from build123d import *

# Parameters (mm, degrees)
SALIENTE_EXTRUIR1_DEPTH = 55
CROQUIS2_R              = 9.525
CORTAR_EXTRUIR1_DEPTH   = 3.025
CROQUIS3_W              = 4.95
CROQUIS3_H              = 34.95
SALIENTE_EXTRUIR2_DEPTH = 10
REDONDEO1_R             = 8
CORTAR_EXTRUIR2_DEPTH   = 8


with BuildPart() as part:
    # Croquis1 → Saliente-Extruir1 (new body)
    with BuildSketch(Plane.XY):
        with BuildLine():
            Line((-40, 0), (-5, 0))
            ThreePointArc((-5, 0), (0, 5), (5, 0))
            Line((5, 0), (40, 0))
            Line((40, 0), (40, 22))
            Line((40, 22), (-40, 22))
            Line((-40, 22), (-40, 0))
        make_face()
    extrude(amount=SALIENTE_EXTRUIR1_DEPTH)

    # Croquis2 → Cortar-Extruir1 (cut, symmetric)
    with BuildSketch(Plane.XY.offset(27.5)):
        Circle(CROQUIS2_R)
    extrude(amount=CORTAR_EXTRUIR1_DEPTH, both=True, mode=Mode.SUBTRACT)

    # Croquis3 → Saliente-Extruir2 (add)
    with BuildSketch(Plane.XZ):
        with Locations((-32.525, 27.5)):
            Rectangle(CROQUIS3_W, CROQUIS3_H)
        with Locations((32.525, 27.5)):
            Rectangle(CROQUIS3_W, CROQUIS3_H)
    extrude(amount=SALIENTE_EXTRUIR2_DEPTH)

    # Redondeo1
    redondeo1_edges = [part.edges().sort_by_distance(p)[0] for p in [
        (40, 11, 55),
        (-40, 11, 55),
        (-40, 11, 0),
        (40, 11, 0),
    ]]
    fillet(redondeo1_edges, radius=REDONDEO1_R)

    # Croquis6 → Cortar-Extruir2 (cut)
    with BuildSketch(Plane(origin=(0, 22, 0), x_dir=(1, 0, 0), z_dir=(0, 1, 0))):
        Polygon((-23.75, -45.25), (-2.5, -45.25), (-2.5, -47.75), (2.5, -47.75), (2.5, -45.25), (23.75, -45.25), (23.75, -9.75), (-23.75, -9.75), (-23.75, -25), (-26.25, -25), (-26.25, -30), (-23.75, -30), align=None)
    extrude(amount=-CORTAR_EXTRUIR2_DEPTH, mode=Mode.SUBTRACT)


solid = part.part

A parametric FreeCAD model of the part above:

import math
import FreeCAD as App
import Part
import Sketcher

V = App.Vector


def edges_at(feature, points):
    """Names of the edges that pass closest to the given points."""
    edges = feature.Shape.Edges
    near = lambda p: min(range(len(edges)), key=lambda i: edges[i].distToShape(Part.Vertex(*p))[0])
    return sorted({f"Edge{near(p) + 1}" for p in points})

doc = App.newDocument("Part")
body = doc.addObject("PartDesign::Body", "Body")

# Sketch on XY plane
sketch1 = body.newObject("Sketcher::SketchObject", "Sketch")
sketch1.AttachmentSupport = (doc.getObject("XY_Plane"), [""])
sketch1.MapMode = "FlatFace"
sketch1.addGeometry([
    Part.LineSegment(V(-40, 0, 0), V(-5, 0, 0)),  # 0
    Part.ArcOfCircle(Part.Circle(V(0, 0, 0), V(0, 0, 1), 5), math.radians(0), math.radians(180)),  # 1
    Part.LineSegment(V(5, 0, 0), V(40, 0, 0)),  # 2
    Part.LineSegment(V(40, 0, 0), V(40, 22, 0)),  # 3
    Part.LineSegment(V(40, 22, 0), V(-40, 22, 0)),  # 4
    Part.LineSegment(V(-40, 22, 0), V(-40, 0, 0)),  # 5
], False)
sketch1.addConstraint([
    Sketcher.Constraint("Coincident", 0, 2, 1, 2),
    Sketcher.Constraint("Coincident", 1, 1, 2, 1),
    Sketcher.Constraint("Coincident", 2, 2, 3, 1),
    Sketcher.Constraint("Coincident", 3, 2, 4, 1),
    Sketcher.Constraint("Coincident", 4, 2, 5, 1),
    Sketcher.Constraint("Coincident", 5, 2, 0, 1),
    Sketcher.Constraint("Horizontal", 0),
    Sketcher.Constraint("Horizontal", 2),
    Sketcher.Constraint("Vertical", 3),
    Sketcher.Constraint("Horizontal", 4),
    Sketcher.Constraint("Vertical", 5),
    Sketcher.Constraint("Coincident", 1, 3, -1, 1),
    Sketcher.Constraint("Symmetric", 2, 2, 5, 2, -1, 1),
    Sketcher.Constraint("PointOnObject", 0, 2, -1),
    Sketcher.Constraint("Radius", 1, 5.0),
    Sketcher.Constraint("DistanceX", 0, 1, 0, 2, 35.0),
    Sketcher.Constraint("DistanceY", 3, 1, 3, 2, 22.0),
])
pad1 = body.newObject("PartDesign::Pad", "Pad")
pad1.Profile = sketch1
pad1.Length = 55

# Sketch on XY plane
sketch2 = body.newObject("Sketcher::SketchObject", "Sketch001")
sketch2.AttachmentSupport = (doc.getObject("XY_Plane"), [""])
sketch2.MapMode = "FlatFace"
sketch2.AttachmentOffset = App.Placement(V(0, 0, 27.5), App.Rotation())
sketch2.addGeometry(Part.Circle(V(0, 0, 0), V(0, 0, 1), 10), False)
sketch2.addConstraint([
    Sketcher.Constraint("Coincident", 0, 3, -1, 1),
    Sketcher.Constraint("Diameter", 0, 19.05),
])
pocket1 = body.newObject("PartDesign::Pocket", "Pocket")
pocket1.Profile = sketch2
pocket1.Length = 6.05
pocket1.Midplane = True

# Sketch on XZ plane
sketch3 = body.newObject("Sketcher::SketchObject", "Sketch002")
sketch3.AttachmentSupport = (doc.getObject("XZ_Plane"), [""])
sketch3.MapMode = "FlatFace"
sketch3.addGeometry([
    Part.LineSegment(V(-35, 45, 0), V(-35, 10, 0)),  # 0
    Part.LineSegment(V(-35, 10, 0), V(-30.1, 10, 0)),  # 1
    Part.LineSegment(V(-30.1, 10, 0), V(-30.1, 45, 0)),  # 2
    Part.LineSegment(V(-30.1, 45, 0), V(-35, 45, 0)),  # 3
    Part.LineSegment(V(30.1, 45, 0), V(30.1, 10, 0)),  # 4
    Part.LineSegment(V(30.1, 10, 0), V(35, 10, 0)),  # 5
    Part.LineSegment(V(35, 10, 0), V(35, 45, 0)),  # 6
    Part.LineSegment(V(35, 45, 0), V(30.1, 45, 0)),  # 7
], False)
sketch3.addConstraint([
    Sketcher.Constraint("Coincident", 0, 2, 1, 1),
    Sketcher.Constraint("Coincident", 1, 2, 2, 1),
    Sketcher.Constraint("Coincident", 2, 2, 3, 1),
    Sketcher.Constraint("Coincident", 3, 2, 0, 1),
    Sketcher.Constraint("Coincident", 4, 2, 5, 1),
    Sketcher.Constraint("Coincident", 5, 2, 6, 1),
    Sketcher.Constraint("Coincident", 6, 2, 7, 1),
    Sketcher.Constraint("Coincident", 7, 2, 4, 1),
    Sketcher.Constraint("Vertical", 0),
    Sketcher.Constraint("Horizontal", 1),
    Sketcher.Constraint("Vertical", 2),
    Sketcher.Constraint("Horizontal", 3),
    Sketcher.Constraint("Vertical", 4),
    Sketcher.Constraint("Horizontal", 5),
    Sketcher.Constraint("Vertical", 6),
    Sketcher.Constraint("Horizontal", 7),
    Sketcher.Constraint("Symmetric", 1, 2, 4, 2, -2),
    Sketcher.Constraint("Symmetric", 3, 2, 6, 2, -2),
    Sketcher.Constraint("DistanceX", 0, 2, -1, 1, 35.0),
    Sketcher.Constraint("DistanceX", 1, 1, 1, 2, 4.95),
    Sketcher.Constraint("DistanceY", 0, 2, 0, 1, 34.95),
    Sketcher.Constraint("DistanceY", -1, 1, 0, 2, 10.025),
])
pad2 = body.newObject("PartDesign::Pad", "Pad001")
pad2.Profile = sketch3
pad2.Length = 10
doc.recompute()

fillet = body.newObject("PartDesign::Fillet", "Fillet")
fillet.Base = (pad2, edges_at(pad2, [
    (40, 11, 55),
    (-40, 11, 55),
    (-40, 11, 0),
    (40, 11, 0),
]))
fillet.Radius = 8

# Sketch on XZ plane
sketch4 = body.newObject("Sketcher::SketchObject", "Sketch003")
sketch4.AttachmentSupport = (doc.getObject("XZ_Plane"), [""])
sketch4.MapMode = "FlatFace"
sketch4.AttachmentOffset = App.Placement(V(0, 0, -22), App.Rotation())
sketch4.addGeometry([
    Part.LineSegment(V(-23.8, 45.2, 0), V(-2.5, 45.2, 0)),  # 0
    Part.LineSegment(V(-2.5, 45.2, 0), V(-2.5, 47.8, 0)),  # 1
    Part.LineSegment(V(-2.5, 47.8, 0), V(2.5, 47.8, 0)),  # 2
    Part.LineSegment(V(2.5, 47.8, 0), V(2.5, 45.2, 0)),  # 3
    Part.LineSegment(V(2.5, 45.2, 0), V(23.8, 45.2, 0)),  # 4
    Part.LineSegment(V(23.8, 45.2, 0), V(23.8, 9.8, 0)),  # 5
    Part.LineSegment(V(23.8, 9.8, 0), V(-23.8, 9.8, 0)),  # 6
    Part.LineSegment(V(-23.8, 9.8, 0), V(-23.8, 25, 0)),  # 7
    Part.LineSegment(V(-23.8, 25, 0), V(-26.2, 25, 0)),  # 8
    Part.LineSegment(V(-26.2, 25, 0), V(-26.2, 30, 0)),  # 9
    Part.LineSegment(V(-26.2, 30, 0), V(-23.8, 30, 0)),  # 10
    Part.LineSegment(V(-23.8, 30, 0), V(-23.8, 45.2, 0)),  # 11
], False)
sketch4.addConstraint([
    Sketcher.Constraint("Coincident", 0, 2, 1, 1),
    Sketcher.Constraint("Coincident", 1, 2, 2, 1),
    Sketcher.Constraint("Coincident", 2, 2, 3, 1),
    Sketcher.Constraint("Coincident", 3, 2, 4, 1),
    Sketcher.Constraint("Coincident", 4, 2, 5, 1),
    Sketcher.Constraint("Coincident", 5, 2, 6, 1),
    Sketcher.Constraint("Coincident", 6, 2, 7, 1),
    Sketcher.Constraint("Coincident", 7, 2, 8, 1),
    Sketcher.Constraint("Coincident", 8, 2, 9, 1),
    Sketcher.Constraint("Coincident", 9, 2, 10, 1),
    Sketcher.Constraint("Coincident", 10, 2, 11, 1),
    Sketcher.Constraint("Coincident", 11, 2, 0, 1),
    Sketcher.Constraint("Horizontal", 0),
    Sketcher.Constraint("Vertical", 1),
    Sketcher.Constraint("Horizontal", 2),
    Sketcher.Constraint("Vertical", 3),
    Sketcher.Constraint("Horizontal", 4),
    Sketcher.Constraint("Vertical", 5),
    Sketcher.Constraint("Horizontal", 6),
    Sketcher.Constraint("Vertical", 7),
    Sketcher.Constraint("Horizontal", 8),
    Sketcher.Constraint("Vertical", 9),
    Sketcher.Constraint("Horizontal", 10),
    Sketcher.Constraint("Vertical", 11),
    Sketcher.Constraint("Symmetric", 0, 2, 3, 2, -2),
    Sketcher.Constraint("Vertical", 7, 2, 10, 2),
    Sketcher.Constraint("Equal", 0, 4),
    Sketcher.Constraint("Equal", 10, 1),
    Sketcher.Constraint("Equal", 2, 9),
    Sketcher.Constraint("Equal", 7, 11),
    Sketcher.Constraint("DistanceX", 2, 1, 2, 2, 5.0),
    Sketcher.Constraint("DistanceX", 6, 2, 6, 1, 47.5),
    Sketcher.Constraint("DistanceX", 8, 2, 8, 1, 2.5),
    Sketcher.Constraint("DistanceY", 5, 2, 5, 1, 35.5),
    Sketcher.Constraint("DistanceY", -1, 1, 7, 2, 25.0),
])
pocket2 = body.newObject("PartDesign::Pocket", "Pocket001")
pocket2.Profile = sketch4
pocket2.Length = 8
pocket2.Reversed = True

doc.recompute()
